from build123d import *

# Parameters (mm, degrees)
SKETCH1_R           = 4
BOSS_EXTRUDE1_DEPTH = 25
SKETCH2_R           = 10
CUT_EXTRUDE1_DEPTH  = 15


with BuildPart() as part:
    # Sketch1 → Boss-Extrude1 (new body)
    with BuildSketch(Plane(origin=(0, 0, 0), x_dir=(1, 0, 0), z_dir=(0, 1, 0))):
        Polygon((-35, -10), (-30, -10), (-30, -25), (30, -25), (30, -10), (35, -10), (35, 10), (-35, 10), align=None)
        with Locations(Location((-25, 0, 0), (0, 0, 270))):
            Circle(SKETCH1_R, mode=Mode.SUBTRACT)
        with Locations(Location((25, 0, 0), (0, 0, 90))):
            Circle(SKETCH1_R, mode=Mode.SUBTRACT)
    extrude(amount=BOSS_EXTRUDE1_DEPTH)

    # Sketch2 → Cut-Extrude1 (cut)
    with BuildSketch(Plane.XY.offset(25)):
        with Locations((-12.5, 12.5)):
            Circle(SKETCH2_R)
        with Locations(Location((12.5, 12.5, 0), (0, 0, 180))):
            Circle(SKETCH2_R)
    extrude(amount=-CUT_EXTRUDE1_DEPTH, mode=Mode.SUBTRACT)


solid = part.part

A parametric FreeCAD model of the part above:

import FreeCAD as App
import Part
import Sketcher


def add_polygon(sketch, points):
    """Adds a closed chain of lines whose ends are joined by coincident constraints."""
    first, n = sketch.GeometryCount, len(points)
    for a, b in zip(points, points[1:] + points[:1]):
        sketch.addGeometry(Part.LineSegment(App.Vector(*a, 0), App.Vector(*b, 0)), False)
    for i in range(n):
        sketch.addConstraint(Sketcher.Constraint("Coincident", first + i, 2, first + (i + 1) % n, 1))

doc = App.newDocument("Part")
body = doc.addObject("PartDesign::Body", "Body")

# Sketch on XZ plane
sketch1 = doc.addObject("Sketcher::SketchObject", "Sketch")
body.addObject(sketch1)
sketch1.AttachmentSupport = (doc.XZ_Plane, [""])
sketch1.MapMode = "FlatFace"
add_polygon(sketch1, [(-35, 10), (-30, 10), (-30, 25), (30, 25), (30, 10), (35, 10), (35, -10), (-35, -10)])  # lines 0-7
sketch1.addGeometry(Part.Circle(App.Vector(-25, 0, 0), App.Vector(0, 0, 1), 4), False)  # 8
sketch1.addGeometry(Part.Circle(App.Vector(25, 0, 0), App.Vector(0, 0, 1), 4), False)  # 9
sketch1.addConstraint([
    Sketcher.Constraint("Horizontal", 0),
    Sketcher.Constraint("Vertical", 1),
    Sketcher.Constraint("Horizontal", 2),
    Sketcher.Constraint("Vertical", 3),
    Sketcher.Constraint("Horizontal", 4),
    Sketcher.Constraint("Vertical", 5),
    Sketcher.Constraint("Horizontal", 6),
    Sketcher.Constraint("Vertical", 7),
    Sketcher.Constraint("Equal", 8, 9),
    Sketcher.Constraint("Symmetric", 8, 3, 9, 3, -1, 1),
    Sketcher.Constraint("Symmetric", 4, 2, 6, 2, -1, 1),
    Sketcher.Constraint("Symmetric", 0, 2, 3, 2, -2),
    Sketcher.Constraint("PointOnObject", 8, 3, -1),
    Sketcher.Constraint("Diameter", 8, 8.0),
    Sketcher.Constraint("DistanceX", 0, 1, 0, 2, 5.0),
    Sketcher.Constraint("DistanceX", 2, 1, 2, 2, 60.0),
    Sketcher.Constraint("DistanceY", 1, 1, 1, 2, 15.0),
    Sketcher.Constraint("DistanceY", 5, 2, 5, 1, 20.0),
    Sketcher.Constraint("DistanceX", 8, 3, -1, 1, 25.0),
])
pad1 = doc.addObject("PartDesign::Pad", "Pad")
body.addObject(pad1)
pad1.Profile = sketch1
pad1.Length = 25
pad1.Reversed = True

# Sketch on XY plane
sketch2 = doc.addObject("Sketcher::SketchObject", "Sketch001")
body.addObject(sketch2)
sketch2.AttachmentSupport = (doc.XY_Plane, [""])
sketch2.MapMode = "FlatFace"
sketch2.AttachmentOffset = App.Placement(App.Vector(0, 0, 25), App.Rotation())
sketch2.addGeometry([
    Part.Circle(App.Vector(-12.5, 12.5, 0), App.Vector(0, 0, 1), 10),
    Part.Circle(App.Vector(12.5, 12.5, 0), App.Vector(0, 0, 1), 10),
], False)
sketch2.addConstraint([
    Sketcher.Constraint("Equal", 0, 1),
    Sketcher.Constraint("Symmetric", 0, 3, 1, 3, -2),
    Sketcher.Constraint("Diameter", 0, 20.0),
    Sketcher.Constraint("DistanceX", 0, 3, 1, 3, 25.0),
    Sketcher.Constraint("DistanceY", -1, 1, 0, 3, 12.5),
])
pocket1 = doc.addObject("PartDesign::Pocket", "Pocket")
body.addObject(pocket1)
pocket1.Profile = sketch2
pocket1.Length = 15

doc.recompute()
